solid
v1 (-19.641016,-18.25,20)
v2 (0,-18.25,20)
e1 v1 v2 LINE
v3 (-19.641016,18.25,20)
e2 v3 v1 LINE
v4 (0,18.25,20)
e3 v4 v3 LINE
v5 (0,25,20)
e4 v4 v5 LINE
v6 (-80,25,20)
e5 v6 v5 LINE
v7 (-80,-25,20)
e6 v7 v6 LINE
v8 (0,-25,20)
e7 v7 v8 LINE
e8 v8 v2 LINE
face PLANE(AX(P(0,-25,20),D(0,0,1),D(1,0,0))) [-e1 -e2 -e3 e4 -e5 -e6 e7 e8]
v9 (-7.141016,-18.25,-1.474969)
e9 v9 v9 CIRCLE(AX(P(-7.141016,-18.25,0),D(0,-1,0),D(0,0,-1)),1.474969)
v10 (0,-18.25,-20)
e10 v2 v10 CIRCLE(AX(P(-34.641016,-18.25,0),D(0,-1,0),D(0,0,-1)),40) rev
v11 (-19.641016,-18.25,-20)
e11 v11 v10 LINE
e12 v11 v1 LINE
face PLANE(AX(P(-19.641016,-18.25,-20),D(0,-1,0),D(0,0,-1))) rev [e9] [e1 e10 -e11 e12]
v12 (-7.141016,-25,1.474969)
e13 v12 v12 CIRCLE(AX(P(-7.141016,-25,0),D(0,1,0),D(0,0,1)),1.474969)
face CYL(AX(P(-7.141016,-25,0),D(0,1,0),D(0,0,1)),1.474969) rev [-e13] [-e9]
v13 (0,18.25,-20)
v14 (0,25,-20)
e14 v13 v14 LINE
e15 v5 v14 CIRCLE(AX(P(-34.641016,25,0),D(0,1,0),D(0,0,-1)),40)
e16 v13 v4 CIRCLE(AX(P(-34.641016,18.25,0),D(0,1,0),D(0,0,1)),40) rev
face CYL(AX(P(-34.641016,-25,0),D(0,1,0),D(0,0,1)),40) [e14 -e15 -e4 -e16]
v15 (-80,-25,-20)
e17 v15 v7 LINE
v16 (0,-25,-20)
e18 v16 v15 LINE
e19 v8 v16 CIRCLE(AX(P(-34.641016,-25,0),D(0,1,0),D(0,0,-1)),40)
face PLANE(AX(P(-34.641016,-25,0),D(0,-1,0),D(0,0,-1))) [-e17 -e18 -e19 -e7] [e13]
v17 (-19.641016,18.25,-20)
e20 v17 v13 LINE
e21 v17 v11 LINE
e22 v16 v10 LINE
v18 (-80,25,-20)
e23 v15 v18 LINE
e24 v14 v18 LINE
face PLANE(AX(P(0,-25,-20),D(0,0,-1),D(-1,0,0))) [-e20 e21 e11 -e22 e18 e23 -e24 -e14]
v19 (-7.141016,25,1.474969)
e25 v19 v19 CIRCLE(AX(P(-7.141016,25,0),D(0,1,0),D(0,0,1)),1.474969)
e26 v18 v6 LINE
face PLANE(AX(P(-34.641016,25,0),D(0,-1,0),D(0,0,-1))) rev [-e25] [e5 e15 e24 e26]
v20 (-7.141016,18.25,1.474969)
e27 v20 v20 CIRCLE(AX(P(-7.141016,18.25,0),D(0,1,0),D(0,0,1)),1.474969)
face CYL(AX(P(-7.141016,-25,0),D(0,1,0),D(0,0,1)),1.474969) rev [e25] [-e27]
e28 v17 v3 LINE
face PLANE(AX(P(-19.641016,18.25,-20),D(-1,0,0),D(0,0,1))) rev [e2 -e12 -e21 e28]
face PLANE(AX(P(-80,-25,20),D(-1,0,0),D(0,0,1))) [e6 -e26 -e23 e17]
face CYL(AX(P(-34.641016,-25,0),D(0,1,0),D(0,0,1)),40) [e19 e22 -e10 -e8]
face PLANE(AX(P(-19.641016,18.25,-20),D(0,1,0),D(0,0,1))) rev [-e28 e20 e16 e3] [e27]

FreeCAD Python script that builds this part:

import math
import FreeCAD as App
import Part
import Sketcher


def add_polygon(sketch, points):
    """Adds a closed chain of lines whose ends are joined by coincident constraints."""
    first, n = sketch.GeometryCount, len(points)
    for a, b in zip(points, points[1:] + points[:1]):
        sketch.addGeometry(Part.LineSegment(App.Vector(*a, 0), App.Vector(*b, 0)), False)
    for i in range(n):
        sketch.addConstraint(Sketcher.Constraint("Coincident", first + i, 2, first + (i + 1) % n, 1))

doc = App.newDocument("Part")
body = doc.addObject("PartDesign::Body", "Body")

# Sketch on XZ plane
sketch1 = body.newObject("Sketcher::SketchObject", "Sketch")
sketch1.AttachmentSupport = (doc.getObject("XZ_Plane"), [""])
sketch1.MapMode = "FlatFace"
sketch1.addGeometry(Part.LineSegment(App.Vector(-80, 20, 0), App.Vector(0, 20, 0)), False)
sketch1.addGeometry(Part.ArcOfCircle(Part.Circle(App.Vector(-35, 0, 0), App.Vector(0, 0, 1), 40), math.radians(-30), math.radians(30)), False)
sketch1.addGeometry(Part.LineSegment(App.Vector(0, -20, 0), App.Vector(-80, -20, 0)), False)
sketch1.addGeometry(Part.LineSegment(App.Vector(-80, -20, 0), App.Vector(-80, 20, 0)), False)
sketch1.addConstraint(Sketcher.Constraint("Coincident", 0, 2, 1, 2))
sketch1.addConstraint(Sketcher.Constraint("Coincident", 1, 1, 2, 1))
sketch1.addConstraint(Sketcher.Constraint("Coincident", 2, 2, 3, 1))
sketch1.addConstraint(Sketcher.Constraint("Coincident", 3, 2, 0, 1))
sketch1.addConstraint(Sketcher.Constraint("Horizontal", 0))
sketch1.addConstraint(Sketcher.Constraint("Horizontal", 2))
sketch1.addConstraint(Sketcher.Constraint("Vertical", 3))
sketch1.addConstraint(Sketcher.Constraint("Symmetric", 0, 2, 1, 1, -1, 1))
sketch1.addConstraint(Sketcher.Constraint("PointOnObject", 1, 3, -1))
sketch1.addConstraint(Sketcher.Constraint("Radius", 1, 40.0))
sketch1.addConstraint(Sketcher.Constraint("DistanceX", 0, 1, 0, 2, 80.0))
sketch1.addConstraint(Sketcher.Constraint("DistanceY", 3, 1, 3, 2, 40.0))
pad1 = body.newObject("PartDesign::Pad", "Pad")
pad1.Profile = sketch1
pad1.Type = "TwoLengths"
pad1.Length = 25
pad1.Length2 = 25
pad1.Reversed = True

# Sketch on XY plane
sketch2 = body.newObject("Sketcher::SketchObject", "Sketch001")
sketch2.AttachmentSupport = (doc.getObject("XY_Plane"), [""])
sketch2.MapMode = "FlatFace"
add_polygon(sketch2, [(-20, 18), (-20, -18), (8, -18), (8, 18)])  # lines 0-3
sketch2.addConstraint(Sketcher.Constraint("Vertical", 0))
sketch2.addConstraint(Sketcher.Constraint("Horizontal", 1))
sketch2.addConstraint(Sketcher.Constraint("Vertical", 2))
sketch2.addConstraint(Sketcher.Constraint("Horizontal", 3))
sketch2.addConstraint(Sketcher.Constraint("DistanceY", 0, 2, 0, 1, 36.5))
sketch2.addConstraint(Sketcher.Constraint("DistanceY", 0, 2, -1, 1, 18.25))
sketch2.addConstraint(Sketcher.Constraint("DistanceX", 1, 1, 1, 2, 27.604399))
sketch2.addConstraint(Sketcher.Constraint("DistanceX", 0, 2, -1, 1, 19.641016))
pocket1 = body.newObject("PartDesign::Pocket", "Pocket")
pocket1.Profile = sketch2
pocket1.Type = "ThroughAll"
pocket1.Midplane = True

# Sketch on XZ plane
sketch3 = body.newObject("Sketcher::SketchObject", "Sketch002")
sketch3.AttachmentSupport = (doc.getObject("XZ_Plane"), [""])
sketch3.MapMode = "FlatFace"
sketch3.addGeometry(Part.Circle(App.Vector(-7.1, 0, 0), App.Vector(0, 0, 1), 1.5), False)
sketch3.addConstraint(Sketcher.Constraint("PointOnObject", 0, 3, -1))
sketch3.addConstraint(Sketcher.Constraint("Diameter", 0, 2.949938))
sketch3.addConstraint(Sketcher.Constraint("DistanceX", 0, 3, -1, 1, 7.141016))
pocket2 = body.newObject("PartDesign::Pocket", "Pocket001")
pocket2.Profile = sketch3
pocket2.Type = "ThroughAll"
pocket2.Midplane = True

doc.recompute()
